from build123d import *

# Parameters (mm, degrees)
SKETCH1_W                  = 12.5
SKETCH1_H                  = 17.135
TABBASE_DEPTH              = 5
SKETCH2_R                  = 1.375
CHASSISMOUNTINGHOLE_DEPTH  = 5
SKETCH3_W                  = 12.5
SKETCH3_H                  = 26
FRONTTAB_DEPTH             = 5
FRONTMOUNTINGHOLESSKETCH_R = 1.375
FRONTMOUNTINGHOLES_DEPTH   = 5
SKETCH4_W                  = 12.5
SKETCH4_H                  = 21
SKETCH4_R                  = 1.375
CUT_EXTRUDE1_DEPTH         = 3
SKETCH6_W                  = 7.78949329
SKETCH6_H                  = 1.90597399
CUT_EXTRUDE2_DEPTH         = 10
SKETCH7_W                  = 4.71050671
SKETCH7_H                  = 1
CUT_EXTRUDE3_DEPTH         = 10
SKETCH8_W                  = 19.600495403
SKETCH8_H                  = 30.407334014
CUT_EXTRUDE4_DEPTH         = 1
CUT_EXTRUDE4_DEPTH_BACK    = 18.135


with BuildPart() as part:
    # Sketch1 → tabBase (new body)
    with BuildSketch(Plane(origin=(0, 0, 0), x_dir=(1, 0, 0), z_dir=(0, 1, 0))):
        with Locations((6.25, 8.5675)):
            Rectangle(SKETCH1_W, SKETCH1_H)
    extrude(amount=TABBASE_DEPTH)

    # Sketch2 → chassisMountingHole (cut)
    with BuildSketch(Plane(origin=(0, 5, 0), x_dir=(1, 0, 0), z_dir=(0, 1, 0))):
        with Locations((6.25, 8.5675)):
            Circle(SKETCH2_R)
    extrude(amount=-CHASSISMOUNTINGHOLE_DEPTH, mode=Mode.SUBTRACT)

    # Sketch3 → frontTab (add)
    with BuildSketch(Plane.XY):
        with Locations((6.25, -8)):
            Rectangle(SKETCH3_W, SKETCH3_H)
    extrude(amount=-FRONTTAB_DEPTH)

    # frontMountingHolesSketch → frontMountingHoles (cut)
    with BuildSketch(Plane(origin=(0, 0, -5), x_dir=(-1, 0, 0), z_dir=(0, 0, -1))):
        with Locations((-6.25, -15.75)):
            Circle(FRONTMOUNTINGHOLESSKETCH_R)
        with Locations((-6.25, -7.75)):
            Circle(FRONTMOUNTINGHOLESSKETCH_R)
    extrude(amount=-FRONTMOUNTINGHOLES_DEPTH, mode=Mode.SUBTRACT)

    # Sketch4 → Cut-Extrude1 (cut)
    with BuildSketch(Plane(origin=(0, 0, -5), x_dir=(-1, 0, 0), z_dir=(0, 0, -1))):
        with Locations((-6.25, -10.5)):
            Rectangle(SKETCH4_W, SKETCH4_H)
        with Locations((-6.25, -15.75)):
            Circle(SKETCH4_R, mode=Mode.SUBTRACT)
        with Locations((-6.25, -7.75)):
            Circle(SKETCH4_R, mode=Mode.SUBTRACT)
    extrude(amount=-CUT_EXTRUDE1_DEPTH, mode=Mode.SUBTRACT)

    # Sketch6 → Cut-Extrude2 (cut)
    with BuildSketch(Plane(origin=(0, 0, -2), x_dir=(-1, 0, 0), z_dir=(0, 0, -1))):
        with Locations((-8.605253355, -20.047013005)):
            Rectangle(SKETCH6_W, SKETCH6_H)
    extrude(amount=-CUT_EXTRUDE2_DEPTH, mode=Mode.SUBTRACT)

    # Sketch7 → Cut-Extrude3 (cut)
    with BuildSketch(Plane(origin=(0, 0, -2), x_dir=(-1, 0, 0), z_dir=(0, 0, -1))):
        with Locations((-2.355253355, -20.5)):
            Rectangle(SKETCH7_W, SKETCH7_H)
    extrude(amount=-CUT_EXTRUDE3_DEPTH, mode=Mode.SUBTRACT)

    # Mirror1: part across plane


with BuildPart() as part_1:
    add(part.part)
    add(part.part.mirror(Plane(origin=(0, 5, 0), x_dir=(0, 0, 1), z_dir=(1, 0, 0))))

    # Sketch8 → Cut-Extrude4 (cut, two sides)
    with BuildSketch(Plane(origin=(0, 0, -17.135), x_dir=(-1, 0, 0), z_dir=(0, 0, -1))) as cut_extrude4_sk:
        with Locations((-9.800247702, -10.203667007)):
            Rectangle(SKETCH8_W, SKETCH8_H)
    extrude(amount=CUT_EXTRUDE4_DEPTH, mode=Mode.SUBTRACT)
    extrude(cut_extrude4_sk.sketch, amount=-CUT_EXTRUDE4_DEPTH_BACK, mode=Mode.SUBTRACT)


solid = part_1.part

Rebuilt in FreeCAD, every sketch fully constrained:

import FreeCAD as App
import Part
import Sketcher

V = App.Vector


def add_polygon(sketch, points):
    """Adds a closed chain of lines whose ends are joined by coincident constraints."""
    first, n = sketch.GeometryCount, len(points)
    for a, b in zip(points, points[1:] + points[:1]):
        sketch.addGeometry(Part.LineSegment(App.Vector(*a, 0), App.Vector(*b, 0)), False)
    for i in range(n):
        sketch.addConstraint(Sketcher.Constraint("Coincident", first + i, 2, first + (i + 1) % n, 1))

doc = App.newDocument("Part")
body = doc.addObject("PartDesign::Body", "Body")

# Sketch on XZ plane
sketch1 = body.newObject("Sketcher::SketchObject", "Sketch")
sketch1.AttachmentSupport = (doc.getObject("XZ_Plane"), [""])
sketch1.MapMode = "FlatFace"
add_polygon(sketch1, [(0, -17), (0, 0), (12, 0), (12, -17)])  # lines 0-3
sketch1.addConstraint(Sketcher.Constraint("Vertical", 0))
sketch1.addConstraint(Sketcher.Constraint("Horizontal", 1))
sketch1.addConstraint(Sketcher.Constraint("Vertical", 2))
sketch1.addConstraint(Sketcher.Constraint("Horizontal", 3))
sketch1.addConstraint(Sketcher.Constraint("Coincident", 0, 2, -1, 1))
sketch1.addConstraint(Sketcher.Constraint("DistanceX", 1, 1, 1, 2, 12.5))
sketch1.addConstraint(Sketcher.Constraint("DistanceY", 0, 1, 0, 2, 17.135))
pad1 = body.newObject("PartDesign::Pad", "Pad")
pad1.Profile = sketch1
pad1.Length = 5
pad1.Reversed = True

# Sketch on XZ plane
sketch2 = body.newObject("Sketcher::SketchObject", "Sketch001")
sketch2.AttachmentSupport = (doc.getObject("XZ_Plane"), [""])
sketch2.MapMode = "FlatFace"
sketch2.AttachmentOffset = App.Placement(V(0, 0, -5), App.Rotation())
sketch2.addGeometry(Part.Circle(V(6.2, -8.6, 0), V(0, 0, 1), 1.4), False)
sketch2.addConstraint(Sketcher.Constraint("Diameter", 0, 2.75))
sketch2.addConstraint(Sketcher.Constraint("DistanceX", -1, 1, 0, 3, 6.25))
sketch2.addConstraint(Sketcher.Constraint("DistanceY", 0, 3, -1, 1, 8.5675))
pocket1 = body.newObject("PartDesign::Pocket", "Pocket")
pocket1.Profile = sketch2
pocket1.Length = 5
pocket1.Reversed = True

# Sketch on XY plane
sketch3 = body.newObject("Sketcher::SketchObject", "Sketch002")
sketch3.AttachmentSupport = (doc.getObject("XY_Plane"), [""])
sketch3.MapMode = "FlatFace"
add_polygon(sketch3, [(0, 5), (0, -21), (12, -21), (12, 5)])  # lines 0-3
sketch3.addConstraint(Sketcher.Constraint("Vertical", 0))
sketch3.addConstraint(Sketcher.Constraint("Horizontal", 1))
sketch3.addConstraint(Sketcher.Constraint("Vertical", 2))
sketch3.addConstraint(Sketcher.Constraint("Horizontal", 3))
sketch3.addConstraint(Sketcher.Constraint("PointOnObject", 0, 2, -2))
sketch3.addConstraint(Sketcher.Constraint("DistanceY", 0, 2, 0, 1, 26.0))
sketch3.addConstraint(Sketcher.Constraint("DistanceX", 1, 1, 1, 2, 12.5))
sketch3.addConstraint(Sketcher.Constraint("DistanceY", 0, 2, -1, 1, 21.0))
pad2 = body.newObject("PartDesign::Pad", "Pad001")
pad2.Profile = sketch3
pad2.Length = 5
pad2.Reversed = True

# Sketch on XY plane
sketch4 = body.newObject("Sketcher::SketchObject", "Sketch003")
sketch4.AttachmentSupport = (doc.getObject("XY_Plane"), [""])
sketch4.MapMode = "FlatFace"
sketch4.AttachmentOffset = App.Placement(V(0, 0, -5), App.Rotation())
sketch4.addGeometry(Part.Circle(V(6.2, -15.8, 0), V(0, 0, 1), 1.4), False)
sketch4.addGeometry(Part.Circle(V(6.2, -7.8, 0), V(0, 0, 1), 1.4), False)
sketch4.addConstraint(Sketcher.Constraint("Equal", 0, 1))
sketch4.addConstraint(Sketcher.Constraint("Vertical", 0, 3, 1, 3))
sketch4.addConstraint(Sketcher.Constraint("Diameter", 0, 2.75))
sketch4.addConstraint(Sketcher.Constraint("DistanceY", 0, 3, 1, 3, 8.0))
sketch4.addConstraint(Sketcher.Constraint("DistanceX", -1, 1, 0, 3, 6.25))
sketch4.addConstraint(Sketcher.Constraint("DistanceY", 0, 3, -1, 1, 15.75))
pocket2 = body.newObject("PartDesign::Pocket", "Pocket001")
pocket2.Profile = sketch4
pocket2.Length = 5
pocket2.Reversed = True

# Sketch on XY plane
sketch5 = body.newObject("Sketcher::SketchObject", "Sketch004")
sketch5.AttachmentSupport = (doc.getObject("XY_Plane"), [""])
sketch5.MapMode = "FlatFace"
sketch5.AttachmentOffset = App.Placement(V(0, 0, -5), App.Rotation())
add_polygon(sketch5, [(12.5, 0), (12.5, -21), (0, -21), (0, 0)])  # lines 0-3
sketch5.addGeometry(Part.Circle(V(6.2, -15.8, 0), V(0, 0, 1), 1.4), False)  # 4
sketch5.addGeometry(Part.Circle(V(6.2, -7.8, 0), V(0, 0, 1), 1.4), False)  # 5
sketch5.addConstraint(Sketcher.Constraint("Vertical", 0))
sketch5.addConstraint(Sketcher.Constraint("Horizontal", 1))
sketch5.addConstraint(Sketcher.Constraint("Vertical", 2))
sketch5.addConstraint(Sketcher.Constraint("Horizontal", 3))
sketch5.addConstraint(Sketcher.Constraint("Coincident", 2, 2, -1, 1))
sketch5.addConstraint(Sketcher.Constraint("Equal", 4, 5))
sketch5.addConstraint(Sketcher.Constraint("Vertical", 4, 3, 5, 3))
sketch5.addConstraint(Sketcher.Constraint("Diameter", 4, 2.75))
sketch5.addConstraint(Sketcher.Constraint("DistanceY", 0, 2, 0, 1, 21.0))
sketch5.addConstraint(Sketcher.Constraint("DistanceX", 1, 2, 1, 1, 12.5))
sketch5.addConstraint(Sketcher.Constraint("DistanceY", 4, 3, 5, 3, 8.0))
sketch5.addConstraint(Sketcher.Constraint("DistanceX", -1, 1, 4, 3, 6.25))
sketch5.addConstraint(Sketcher.Constraint("DistanceY", 4, 3, -1, 1, 15.75))
pocket3 = body.newObject("PartDesign::Pocket", "Pocket002")
pocket3.Profile = sketch5
pocket3.Length = 3
pocket3.Reversed = True

# Sketch on XY plane
sketch6 = body.newObject("Sketcher::SketchObject", "Sketch005")
sketch6.AttachmentSupport = (doc.getObject("XY_Plane"), [""])
sketch6.MapMode = "FlatFace"
sketch6.AttachmentOffset = App.Placement(V(0, 0, -2), App.Rotation())
add_polygon(sketch6, [(12.5, -19.1), (12.5, -21), (4.7, -21), (4.7, -19.1)])  # lines 0-3
sketch6.addConstraint(Sketcher.Constraint("Vertical", 0))
sketch6.addConstraint(Sketcher.Constraint("Horizontal", 1))
sketch6.addConstraint(Sketcher.Constraint("Vertical", 2))
sketch6.addConstraint(Sketcher.Constraint("Horizontal", 3))
sketch6.addConstraint(Sketcher.Constraint("DistanceY", 0, 2, -1, 1, 21.0))
sketch6.addConstraint(Sketcher.Constraint("DistanceX", -1, 1, 0, 2, 12.5))
sketch6.addConstraint(Sketcher.Constraint("DistanceX", 1, 2, 1, 1, 7.789493))
sketch6.addConstraint(Sketcher.Constraint("DistanceY", 0, 2, 0, 1, 1.905974))
pocket4 = body.newObject("PartDesign::Pocket", "Pocket003")
pocket4.Profile = sketch6
pocket4.Length = 10
pocket4.Reversed = True

# Sketch on XY plane
sketch7 = body.newObject("Sketcher::SketchObject", "Sketch006")
sketch7.AttachmentSupport = (doc.getObject("XY_Plane"), [""])
sketch7.MapMode = "FlatFace"
sketch7.AttachmentOffset = App.Placement(V(0, 0, -2), App.Rotation())
add_polygon(sketch7, [(4.7, -20), (4.7, -21), (0, -21), (0, -20)])  # lines 0-3
sketch7.addConstraint(Sketcher.Constraint("Vertical", 0))
sketch7.addConstraint(Sketcher.Constraint("Horizontal", 1))
sketch7.addConstraint(Sketcher.Constraint("Vertical", 2))
sketch7.addConstraint(Sketcher.Constraint("Horizontal", 3))
sketch7.addConstraint(Sketcher.Constraint("PointOnObject", 1, 2, -2))
sketch7.addConstraint(Sketcher.Constraint("DistanceY", 0, 2, 0, 1, 1.0))
sketch7.addConstraint(Sketcher.Constraint("DistanceY", 0, 2, -1, 1, 21.0))
sketch7.addConstraint(Sketcher.Constraint("DistanceX", 1, 2, 1, 1, 4.710507))
pocket5 = body.newObject("PartDesign::Pocket", "Pocket004")
pocket5.Profile = sketch7
pocket5.Length = 10
pocket5.Reversed = True
body2 = doc.addObject("PartDesign::Body", "Body001")
doc.recompute()

body2.BaseFeature = body
doc.recompute()

mirroring = doc.addObject("Part::Mirroring", "Mirroring")
mirroring.Source = body
mirroring.Base = V(0, 5, 0)
mirroring.Normal = V(1, 0, 0)
body3 = doc.addObject("PartDesign::Body", "Body002")
body3.BaseFeature = mirroring
boolean = body2.newObject("PartDesign::Boolean", "Boolean")
boolean.Type = "Fuse"
boolean.addObjects([body3])
doc.recompute()

# Sketch on XY plane
sketch8 = body2.newObject("Sketcher::SketchObject", "Sketch007")
sketch8.AttachmentSupport = (doc.getObject("XY_Plane001"), [""])
sketch8.MapMode = "FlatFace"
sketch8.AttachmentOffset = App.Placement(V(0, 0, -17.135), App.Rotation())
add_polygon(sketch8, [(20, 5), (20, -25), (0, -25), (0, 5)])  # lines 0-3
sketch8.addConstraint(Sketcher.Constraint("Vertical", 0))
sketch8.addConstraint(Sketcher.Constraint("Horizontal", 1))
sketch8.addConstraint(Sketcher.Constraint("Vertical", 2))
sketch8.addConstraint(Sketcher.Constraint("Horizontal", 3))
sketch8.addConstraint(Sketcher.Constraint("PointOnObject", 1, 2, -2))
sketch8.addConstraint(Sketcher.Constraint("DistanceY", -1, 1, 2, 2, 5.0))
sketch8.addConstraint(Sketcher.Constraint("DistanceX", 1, 2, 1, 1, 19.600495))
sketch8.addConstraint(Sketcher.Constraint("DistanceY", 0, 2, 0, 1, 30.407334))
pocket6 = body2.newObject("PartDesign::Pocket", "Pocket005")
pocket6.Profile = sketch8
pocket6.Type = "ThroughAll"
pocket6.Midplane = True
mirroring.Visibility = False

doc.recompute()
